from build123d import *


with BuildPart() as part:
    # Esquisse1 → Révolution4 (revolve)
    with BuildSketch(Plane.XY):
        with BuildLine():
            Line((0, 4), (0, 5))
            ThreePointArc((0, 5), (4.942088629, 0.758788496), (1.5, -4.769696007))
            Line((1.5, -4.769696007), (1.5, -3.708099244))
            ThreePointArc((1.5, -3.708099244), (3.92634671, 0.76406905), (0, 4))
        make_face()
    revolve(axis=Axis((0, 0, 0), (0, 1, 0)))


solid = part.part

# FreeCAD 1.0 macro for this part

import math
import FreeCAD as App
import Part
import Sketcher

V = App.Vector
Q = App.Units.Quantity

doc = App.newDocument("Part")
body = doc.addObject("PartDesign::Body", "Body")

# Sketch on XY plane
sketch1 = body.newObject("Sketcher::SketchObject", "Sketch")
sketch1.AttachmentSupport = (doc.getObject("XY_Plane"), [""])
sketch1.MapMode = "FlatFace"
sketch1.addGeometry([
    Part.LineSegment(V(0, 5, 0), V(0, 4, 0)),
    Part.ArcOfCircle(Part.Circle(V(0, 0, 0), V(0, 0, 1), 4), math.radians(-68), math.radians(90)),
    Part.LineSegment(V(1.5, -3.7, 0), V(1.5, -4.8, 0)),
    Part.ArcOfCircle(Part.Circle(V(0, 0, 0), V(0, 0, 1), 5), math.radians(-73), math.radians(90)),
], False)
sketch1.addConstraint([
    Sketcher.Constraint("Coincident", 0, 2, 1, 2),
    Sketcher.Constraint("Coincident", 1, 1, 2, 1),
    Sketcher.Constraint("Coincident", 2, 2, 3, 1),
    Sketcher.Constraint("Coincident", 3, 2, 0, 1),
    Sketcher.Constraint("Vertical", 0),
    Sketcher.Constraint("Vertical", 2),
    Sketcher.Constraint("Coincident", 1, 3, -1, 1),
    Sketcher.Constraint("Coincident", 3, 3, -1, 1),
    Sketcher.Constraint("PointOnObject", 0, 2, -2),
    Sketcher.Constraint("Radius", 1, Q("4 mm")),
    Sketcher.Constraint("Radius", 3, Q("5 mm")),
    Sketcher.Constraint("DistanceX", -1, 1, 1, 1, Q("1.5 mm")),
])
revolution = body.newObject("PartDesign::Revolution", "Revolution")
revolution.Profile = sketch1
revolution.ReferenceAxis = (sketch1, ["V_Axis"])
revolution.Angle = 360

doc.recompute()
